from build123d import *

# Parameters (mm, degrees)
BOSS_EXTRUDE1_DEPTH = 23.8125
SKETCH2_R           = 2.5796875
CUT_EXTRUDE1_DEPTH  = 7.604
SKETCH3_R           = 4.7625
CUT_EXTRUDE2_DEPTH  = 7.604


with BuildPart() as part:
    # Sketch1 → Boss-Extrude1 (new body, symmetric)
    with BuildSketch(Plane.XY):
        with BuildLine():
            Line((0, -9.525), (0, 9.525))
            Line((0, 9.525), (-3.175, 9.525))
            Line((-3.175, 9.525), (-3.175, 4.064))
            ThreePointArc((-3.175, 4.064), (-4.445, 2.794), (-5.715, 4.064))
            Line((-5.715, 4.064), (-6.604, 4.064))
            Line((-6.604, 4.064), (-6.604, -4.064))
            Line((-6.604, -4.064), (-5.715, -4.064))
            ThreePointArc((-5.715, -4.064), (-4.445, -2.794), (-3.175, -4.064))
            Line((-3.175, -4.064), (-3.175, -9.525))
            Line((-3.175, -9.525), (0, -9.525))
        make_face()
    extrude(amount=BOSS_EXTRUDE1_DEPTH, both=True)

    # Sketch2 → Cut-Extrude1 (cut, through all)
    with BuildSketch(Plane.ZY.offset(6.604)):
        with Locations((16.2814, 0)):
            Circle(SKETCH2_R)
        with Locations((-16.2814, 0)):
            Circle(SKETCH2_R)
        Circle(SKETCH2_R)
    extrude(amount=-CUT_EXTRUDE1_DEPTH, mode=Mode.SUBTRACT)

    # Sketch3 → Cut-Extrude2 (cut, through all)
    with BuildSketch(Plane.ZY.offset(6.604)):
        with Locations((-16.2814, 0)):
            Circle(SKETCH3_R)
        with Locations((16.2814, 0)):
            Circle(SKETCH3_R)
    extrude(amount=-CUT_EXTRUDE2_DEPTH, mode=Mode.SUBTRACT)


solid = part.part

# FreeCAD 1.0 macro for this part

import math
import FreeCAD as App
import Part
import Sketcher

V = App.Vector
Q = App.Units.Quantity

doc = App.newDocument("Part")
body = doc.addObject("PartDesign::Body", "Body")

sketch1 = body.newObject("Sketcher::SketchObject", "Sketch")
sketch1.AttachmentSupport = (doc.getObject("XY_Plane"), [""])
sketch1.MapMode = "FlatFace"
sketch1.addGeometry(Part.LineSegment(V(0, -9.525, 0), V(0, 9.525, 0)), False)
sketch1.addGeometry(Part.LineSegment(V(0, 9.525, 0), V(-3.175, 9.525, 0)), False)
sketch1.addGeometry(Part.LineSegment(V(-3.175, 9.525, 0), V(-3.175, 4.064, 0)), False)
sketch1.addGeometry(Part.ArcOfCircle(Part.Circle(V(-4.445, 4.064, 0), V(0, 0, 1), 1.27), math.radians(180), math.radians(360)), False)
sketch1.addGeometry(Part.LineSegment(V(-5.715, 4.064, 0), V(-6.604, 4.064, 0)), False)
sketch1.addGeometry(Part.LineSegment(V(-6.604, 4.064, 0), V(-6.604, -4.064, 0)), False)
sketch1.addGeometry(Part.LineSegment(V(-6.604, -4.064, 0), V(-5.715, -4.064, 0)), False)
sketch1.addGeometry(Part.ArcOfCircle(Part.Circle(V(-4.445, -4.064, 0), V(0, 0, 1), 1.27), math.radians(0), math.radians(180)), False)
sketch1.addGeometry(Part.LineSegment(V(-3.175, -4.064, 0), V(-3.175, -9.525, 0)), False)
sketch1.addGeometry(Part.LineSegment(V(-3.175, -9.525, 0), V(0, -9.525, 0)), False)
sketch1.addConstraint(Sketcher.Constraint("Coincident", 0, 2, 1, 1))
sketch1.addConstraint(Sketcher.Constraint("Coincident", 1, 2, 2, 1))
sketch1.addConstraint(Sketcher.Constraint("Tangent", 2, 2, 3, 2))
sketch1.addConstraint(Sketcher.Constraint("Coincident", 3, 1, 4, 1))
sketch1.addConstraint(Sketcher.Constraint("Coincident", 4, 2, 5, 1))
sketch1.addConstraint(Sketcher.Constraint("Coincident", 5, 2, 6, 1))
sketch1.addConstraint(Sketcher.Constraint("Coincident", 6, 2, 7, 2))
sketch1.addConstraint(Sketcher.Constraint("Tangent", 7, 1, 8, 1))
sketch1.addConstraint(Sketcher.Constraint("Coincident", 8, 2, 9, 1))
sketch1.addConstraint(Sketcher.Constraint("Coincident", 9, 2, 0, 1))
sketch1.addConstraint(Sketcher.Constraint("Vertical", 0))
sketch1.addConstraint(Sketcher.Constraint("Horizontal", 1))
sketch1.addConstraint(Sketcher.Constraint("Vertical", 2))
sketch1.addConstraint(Sketcher.Constraint("Horizontal", 4))
sketch1.addConstraint(Sketcher.Constraint("Vertical", 5))
sketch1.addConstraint(Sketcher.Constraint("Horizontal", 6))
sketch1.addConstraint(Sketcher.Constraint("Vertical", 8))
sketch1.addConstraint(Sketcher.Constraint("Horizontal", 9))
sketch1.addConstraint(Sketcher.Constraint("Equal", 3, 7))
sketch1.addConstraint(Sketcher.Constraint("Symmetric", 0, 2, 9, 2, -1, 1))
sketch1.addConstraint(Sketcher.Constraint("Symmetric", 3, 3, 7, 3, -1))
sketch1.addConstraint(Sketcher.Constraint("Horizontal", 2, 2, 3, 1))
sketch1.addConstraint(Sketcher.Constraint("Horizontal", 7, 3, 5, 2))
sketch1.addConstraint(Sketcher.Constraint("Radius", 3, Q("0.05 in")))
sketch1.addConstraint(Sketcher.Constraint("DistanceY", 0, 1, 0, 2, Q("0.75 in")))
sketch1.addConstraint(Sketcher.Constraint("DistanceY", 5, 2, 5, 1, Q("0.32 in")))
sketch1.addConstraint(Sketcher.Constraint("DistanceX", 1, 2, 1, 1, Q("0.125 in")))
sketch1.addConstraint(Sketcher.Constraint("DistanceX", 4, 2, 4, 1, Q("0.035 in")))
pad1 = body.newObject("PartDesign::Pad", "Pad")
pad1.Profile = sketch1
pad1.Length = Q("1.875 in")
pad1.Midplane = True

sketch2 = body.newObject("Sketcher::SketchObject", "Sketch001")
sketch2.AttachmentSupport = (doc.getObject("YZ_Plane"), [""])
sketch2.MapMode = "FlatFace"
sketch2.AttachmentOffset = App.Placement(V(0, 0, -0.26 * 25.4), App.Rotation())
sketch2.addGeometry(Part.Circle(V(0, 16.2814, 0), V(0, 0, 1), 2.579687), False)
sketch2.addGeometry(Part.Circle(V(0, -16.2814, 0), V(0, 0, 1), 2.579687), False)
sketch2.addGeometry(Part.Circle(V(0, 0, 0), V(0, 0, 1), 2.579687), False)
sketch2.addConstraint(Sketcher.Constraint("Coincident", 2, 3, -1, 1))
sketch2.addConstraint(Sketcher.Constraint("Equal", 0, 1))
sketch2.addConstraint(Sketcher.Constraint("Equal", 1, 2))
sketch2.addConstraint(Sketcher.Constraint("Symmetric", 0, 3, 1, 3, -1, 1))
sketch2.addConstraint(Sketcher.Constraint("PointOnObject", 0, 3, -2))
sketch2.addConstraint(Sketcher.Constraint("Diameter", 0, Q("0.203125 in")))
sketch2.addConstraint(Sketcher.Constraint("DistanceY", -1, 1, 0, 3, Q("0.641 in")))
pocket1 = body.newObject("PartDesign::Pocket", "Pocket")
pocket1.Profile = sketch2
pocket1.Type = "ThroughAll"
pocket1.Reversed = True

sketch3 = body.newObject("Sketcher::SketchObject", "Sketch002")
sketch3.AttachmentSupport = (doc.getObject("YZ_Plane"), [""])
sketch3.MapMode = "FlatFace"
sketch3.AttachmentOffset = App.Placement(V(0, 0, -0.26 * 25.4), App.Rotation())
sketch3.addGeometry(Part.Circle(V(0, -16.2814, 0), V(0, 0, 1), 4.7625), False)
sketch3.addGeometry(Part.Circle(V(0, 16.2814, 0), V(0, 0, 1), 4.7625), False)
sketch3.addConstraint(Sketcher.Constraint("Equal", 0, 1))
sketch3.addConstraint(Sketcher.Constraint("Symmetric", 0, 3, 1, 3, -1, 1))
sketch3.addConstraint(Sketcher.Constraint("PointOnObject", 0, 3, -2))
sketch3.addConstraint(Sketcher.Constraint("Diameter", 0, Q("0.375 in")))
sketch3.addConstraint(Sketcher.Constraint("DistanceY", 0, 3, -1, 1, Q("0.641 in")))
pocket2 = body.newObject("PartDesign::Pocket", "Pocket001")
pocket2.Profile = sketch3
pocket2.Type = "ThroughAll"
pocket2.Reversed = True

doc.recompute()
